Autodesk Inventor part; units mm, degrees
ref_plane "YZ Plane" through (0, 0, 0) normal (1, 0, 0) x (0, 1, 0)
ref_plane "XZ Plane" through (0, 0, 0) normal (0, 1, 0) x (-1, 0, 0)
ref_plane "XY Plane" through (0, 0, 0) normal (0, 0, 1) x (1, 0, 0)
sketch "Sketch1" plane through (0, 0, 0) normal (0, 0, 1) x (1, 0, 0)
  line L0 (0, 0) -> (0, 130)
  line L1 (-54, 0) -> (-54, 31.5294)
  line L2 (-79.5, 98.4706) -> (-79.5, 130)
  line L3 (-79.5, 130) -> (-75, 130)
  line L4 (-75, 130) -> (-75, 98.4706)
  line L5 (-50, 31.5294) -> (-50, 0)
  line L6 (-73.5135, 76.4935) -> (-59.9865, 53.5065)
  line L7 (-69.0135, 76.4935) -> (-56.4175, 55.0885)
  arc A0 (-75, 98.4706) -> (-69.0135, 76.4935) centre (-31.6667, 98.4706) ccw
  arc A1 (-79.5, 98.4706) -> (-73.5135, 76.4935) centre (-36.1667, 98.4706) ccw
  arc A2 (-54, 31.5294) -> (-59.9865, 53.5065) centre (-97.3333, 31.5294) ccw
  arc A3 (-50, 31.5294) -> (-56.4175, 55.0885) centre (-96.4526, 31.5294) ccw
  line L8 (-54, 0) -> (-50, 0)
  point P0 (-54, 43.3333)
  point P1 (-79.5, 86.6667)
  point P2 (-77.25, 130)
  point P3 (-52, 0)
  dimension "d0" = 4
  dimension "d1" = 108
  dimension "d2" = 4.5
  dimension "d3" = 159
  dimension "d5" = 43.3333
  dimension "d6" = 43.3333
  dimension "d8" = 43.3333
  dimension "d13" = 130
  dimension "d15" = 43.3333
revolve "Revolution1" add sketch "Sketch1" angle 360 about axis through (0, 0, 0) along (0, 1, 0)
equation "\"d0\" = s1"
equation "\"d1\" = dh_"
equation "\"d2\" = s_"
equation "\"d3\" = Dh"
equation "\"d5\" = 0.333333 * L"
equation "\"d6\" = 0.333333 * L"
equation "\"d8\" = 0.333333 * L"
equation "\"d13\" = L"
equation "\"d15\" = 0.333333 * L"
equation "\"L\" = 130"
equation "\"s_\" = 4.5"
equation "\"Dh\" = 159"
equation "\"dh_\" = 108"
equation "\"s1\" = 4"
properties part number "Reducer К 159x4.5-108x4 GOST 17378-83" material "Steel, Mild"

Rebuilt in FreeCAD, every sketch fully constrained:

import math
import FreeCAD as App
import Part
import Sketcher
from FreeCAD import Vector

doc = App.newDocument("Part")
body = doc.addObject("PartDesign::Body", "Body")

# Sketch on XY plane
sketch1 = doc.addObject("Sketcher::SketchObject", "Sketch")
body.addObject(sketch1)
sketch1.AttachmentSupport = (doc.XY_Plane, [""])
sketch1.MapMode = "FlatFace"
sketch1.addGeometry([
    Part.LineSegment(Vector(-54, 31.5, 0), Vector(-54, 0, 0)),  # 0
    Part.LineSegment(Vector(-54, 0, 0), Vector(-50, 0, 0)),  # 1
    Part.LineSegment(Vector(-50, 0, 0), Vector(-50, 31.5, 0)),  # 2
    Part.ArcOfCircle(Part.Circle(Vector(-96.5, 31.5, 0), Vector(0, 0, 1), 46.5), math.radians(0), math.radians(30)),  # 3
    Part.LineSegment(Vector(-56.4, 55.1, 0), Vector(-69, 76.5, 0)),  # 4
    Part.ArcOfCircle(Part.Circle(Vector(-31.7, 98.5, 0), Vector(0, 0, 1), 43.3), math.radians(180), math.radians(210)),  # 5
    Part.LineSegment(Vector(-75, 98.5, 0), Vector(-75, 130, 0)),  # 6
    Part.LineSegment(Vector(-75, 130, 0), Vector(-79.5, 130, 0)),  # 7
    Part.LineSegment(Vector(-79.5, 130, 0), Vector(-79.5, 98.5, 0)),  # 8
    Part.ArcOfCircle(Part.Circle(Vector(-36.2, 98.5, 0), Vector(0, 0, 1), 43.3), math.radians(180), math.radians(210)),  # 9
    Part.LineSegment(Vector(-73.5, 76.5, 0), Vector(-60, 53.5, 0)),  # 10
    Part.ArcOfCircle(Part.Circle(Vector(-97.3, 31.5, 0), Vector(0, 0, 1), 43.3), math.radians(0), math.radians(30)),  # 11
], False)
sketch1.addConstraint([
    Sketcher.Constraint("Coincident", 0, 2, 1, 1),
    Sketcher.Constraint("Coincident", 1, 2, 2, 1),
    Sketcher.Constraint("Tangent", 2, 2, 3, 1),
    Sketcher.Constraint("Tangent", 3, 2, 4, 1),
    Sketcher.Constraint("Tangent", 4, 2, 5, 2),
    Sketcher.Constraint("Tangent", 5, 1, 6, 1),
    Sketcher.Constraint("Coincident", 6, 2, 7, 1),
    Sketcher.Constraint("Coincident", 7, 2, 8, 1),
    Sketcher.Constraint("Tangent", 8, 2, 9, 1),
    Sketcher.Constraint("Tangent", 9, 2, 10, 1),
    Sketcher.Constraint("Tangent", 10, 2, 11, 2),
    Sketcher.Constraint("Tangent", 11, 1, 0, 1),
    Sketcher.Constraint("Vertical", 0),
    Sketcher.Constraint("Horizontal", 1),
    Sketcher.Constraint("Vertical", 2),
    Sketcher.Constraint("Vertical", 6),
    Sketcher.Constraint("Horizontal", 7),
    Sketcher.Constraint("Vertical", 8),
    Sketcher.Constraint("Equal", 5, 9),
    Sketcher.Constraint("Equal", 9, 11),
    Sketcher.Constraint("PointOnObject", 0, 2, -1),
    Sketcher.Constraint("Parallel", 4, 10),
    Sketcher.Constraint("Horizontal", 5, 3, 9, 3),
    Sketcher.Constraint("Horizontal", 3, 3, 11, 3),
    Sketcher.Constraint("Equal", 2, 6),
    Sketcher.Constraint("DistanceX", 1, 1, 1, 2, 4.0),
    Sketcher.Constraint("DistanceX", 7, 2, 7, 1, 4.5),
    Sketcher.Constraint("DistanceY", -1, 1, 6, 2, 130.0),
    Sketcher.Constraint("Radius", 5, 43.3333),
    Sketcher.Constraint("DistanceX", 0, 2, -1, 1, 54.0),
    Sketcher.Constraint("DistanceX", 5, 1, -1, 1, 75.0),
    Sketcher.Constraint("Radius", 3, 46.4526),
])
revolution = doc.addObject("PartDesign::Revolution", "Revolution")
body.addObject(revolution)
revolution.Profile = sketch1
revolution.ReferenceAxis = (sketch1, ["V_Axis"])
revolution.Angle = 360

doc.recompute()
